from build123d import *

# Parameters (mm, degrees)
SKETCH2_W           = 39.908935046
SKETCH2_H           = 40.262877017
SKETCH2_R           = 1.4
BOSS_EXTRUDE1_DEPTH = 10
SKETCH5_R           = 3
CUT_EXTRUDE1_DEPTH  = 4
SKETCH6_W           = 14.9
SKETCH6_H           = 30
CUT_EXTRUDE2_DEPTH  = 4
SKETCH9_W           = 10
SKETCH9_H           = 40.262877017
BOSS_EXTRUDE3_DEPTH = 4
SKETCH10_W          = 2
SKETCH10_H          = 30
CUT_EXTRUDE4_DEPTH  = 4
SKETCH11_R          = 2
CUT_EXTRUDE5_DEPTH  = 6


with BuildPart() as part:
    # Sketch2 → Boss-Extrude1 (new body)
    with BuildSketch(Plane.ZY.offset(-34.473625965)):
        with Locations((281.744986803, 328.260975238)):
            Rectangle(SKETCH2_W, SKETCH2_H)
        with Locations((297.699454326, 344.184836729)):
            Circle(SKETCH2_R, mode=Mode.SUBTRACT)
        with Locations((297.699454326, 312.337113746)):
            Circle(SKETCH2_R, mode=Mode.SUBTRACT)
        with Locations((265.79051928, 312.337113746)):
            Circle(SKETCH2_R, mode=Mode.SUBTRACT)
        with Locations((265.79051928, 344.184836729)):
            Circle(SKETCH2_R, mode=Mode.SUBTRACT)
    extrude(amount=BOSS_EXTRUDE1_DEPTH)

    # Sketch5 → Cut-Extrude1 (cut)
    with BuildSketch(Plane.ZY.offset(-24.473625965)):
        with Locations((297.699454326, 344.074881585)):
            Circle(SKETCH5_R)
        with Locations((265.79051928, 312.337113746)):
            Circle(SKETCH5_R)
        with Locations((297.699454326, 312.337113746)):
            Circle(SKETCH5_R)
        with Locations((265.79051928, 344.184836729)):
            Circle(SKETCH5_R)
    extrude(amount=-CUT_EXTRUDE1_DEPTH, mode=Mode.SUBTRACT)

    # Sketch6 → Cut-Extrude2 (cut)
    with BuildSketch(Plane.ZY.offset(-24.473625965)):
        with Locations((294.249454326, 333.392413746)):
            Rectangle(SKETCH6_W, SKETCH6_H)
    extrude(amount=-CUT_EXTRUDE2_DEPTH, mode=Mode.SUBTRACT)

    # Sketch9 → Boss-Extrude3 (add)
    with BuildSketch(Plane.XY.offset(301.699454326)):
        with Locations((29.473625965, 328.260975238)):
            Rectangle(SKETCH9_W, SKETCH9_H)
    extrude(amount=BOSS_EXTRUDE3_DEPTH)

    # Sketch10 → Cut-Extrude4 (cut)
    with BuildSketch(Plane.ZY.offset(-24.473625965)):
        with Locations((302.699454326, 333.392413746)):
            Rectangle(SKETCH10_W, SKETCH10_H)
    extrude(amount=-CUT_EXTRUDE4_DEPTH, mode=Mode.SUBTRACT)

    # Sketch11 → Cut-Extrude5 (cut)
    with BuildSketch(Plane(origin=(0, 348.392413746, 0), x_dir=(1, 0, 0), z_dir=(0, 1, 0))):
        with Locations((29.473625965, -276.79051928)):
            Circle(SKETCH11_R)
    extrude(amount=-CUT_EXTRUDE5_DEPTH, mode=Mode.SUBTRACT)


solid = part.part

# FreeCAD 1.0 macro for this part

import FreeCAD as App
import Part
import Sketcher


def add_polygon(sketch, points):
    """Adds a closed chain of lines whose ends are joined by coincident constraints."""
    first, n = sketch.GeometryCount, len(points)
    for a, b in zip(points, points[1:] + points[:1]):
        sketch.addGeometry(Part.LineSegment(App.Vector(*a, 0), App.Vector(*b, 0)), False)
    for i in range(n):
        sketch.addConstraint(Sketcher.Constraint("Coincident", first + i, 2, first + (i + 1) % n, 1))

doc = App.newDocument("Part")
params = doc.addObject("Spreadsheet::Sheet", "Params")
for row, (alias, value) in enumerate([
    ("sketch1_diameter", "2.8 mm"),
    ("pad1_length", "10 mm"),
    ("sketch2_diameter", "6 mm"),
    ("pocket1_length", "4 mm"),
    ("sketch3_width", "30 mm"),
    ("sketch3_height", "14.9 mm"),
    ("pocket2_length", "4 mm"),
    ("sketch4_width", "10 mm"),
    ("pad2_length", "4 mm"),
    ("sketch5_width", "30 mm"),
    ("sketch5_height", "2 mm"),
    ("pocket3_length", "4 mm"),
    ("sketch6_diameter", "4 mm"),
    ("pocket4_length", "6 mm"),
], start=1):
    params.set(f"A{row}", alias)
    params.set(f"B{row}", "=" + value)
    params.setAlias(f"B{row}", alias)

body = doc.addObject("PartDesign::Body", "Body")

sketch1 = body.newObject("Sketcher::SketchObject", "Sketch")
sketch1.AttachmentSupport = (doc.getObject("YZ_Plane"), [""])
sketch1.MapMode = "FlatFace"
sketch1.AttachmentOffset = App.Placement(App.Vector(0, 0, 34.473626), App.Rotation())
add_polygon(sketch1, [(348.392414, 261.790519), (308.129537, 261.790519), (308.129537, 301.699454), (348.392414, 301.699454)])
sketch1.addGeometry(Part.Circle(App.Vector(312.337114, 265.790519, 0), App.Vector(0, 0, 1), 1.4), False)
sketch1.addGeometry(Part.Circle(App.Vector(312.337114, 297.699454, 0), App.Vector(0, 0, 1), 1.4), False)
sketch1.addGeometry(Part.Circle(App.Vector(344.184837, 265.790519, 0), App.Vector(0, 0, 1), 1.4), False)
sketch1.addGeometry(Part.Circle(App.Vector(344.184837, 297.699454, 0), App.Vector(0, 0, 1), 1.4), False)
sketch1.addConstraint([
    Sketcher.Constraint("Horizontal", 0),
    Sketcher.Constraint("Vertical", 1),
    Sketcher.Constraint("Horizontal", 2),
    Sketcher.Constraint("Vertical", 3),
    Sketcher.Constraint("Equal", 4, 5),
    Sketcher.Constraint("Equal", 5, 6),
    Sketcher.Constraint("Equal", 6, 7),
    Sketcher.Constraint("Horizontal", 4, 3, 6, 3),
    Sketcher.Constraint("Horizontal", 5, 3, 7, 3),
    Sketcher.Constraint("Vertical", 4, 3, 5, 3),
    Sketcher.Constraint("Vertical", 6, 3, 7, 3),
    Sketcher.Constraint("Diameter", 4, 2.8),
    Sketcher.Constraint("DistanceY", 0, 2, 4, 3, 4.0),
    Sketcher.Constraint("DistanceY", 5, 3, 1, 2, 4.0),
    Sketcher.Constraint("DistanceX", 0, 2, 6, 3, 36.0553),
    Sketcher.Constraint("DistanceX", 5, 3, 2, 2, 36.0553),
    Sketcher.Constraint("DistanceX", 0, 2, 0, 1, 40.262877),
    Sketcher.Constraint("DistanceY", 1, 1, 1, 2, 39.908935),
    Sketcher.Constraint("DistanceY", -1, 1, 4, 3, 265.790519),
    Sketcher.Constraint("DistanceX", -1, 1, 4, 3, 312.337114),
])
sketch1.setExpression("Constraints[15]", "Params.sketch1_diameter")
pad1 = body.newObject("PartDesign::Pad", "Pad")
pad1.Profile = sketch1
pad1.setExpression("Length", "Params.pad1_length")
pad1.Reversed = True

sketch2 = body.newObject("Sketcher::SketchObject", "Sketch001")
sketch2.AttachmentSupport = (doc.getObject("YZ_Plane"), [""])
sketch2.MapMode = "FlatFace"
sketch2.AttachmentOffset = App.Placement(App.Vector(0, 0, 24.473626), App.Rotation())
sketch2.addGeometry([
    Part.Circle(App.Vector(344.074882, 297.699454, 0), App.Vector(0, 0, 1), 3),
    Part.Circle(App.Vector(312.337114, 265.790519, 0), App.Vector(0, 0, 1), 3),
    Part.Circle(App.Vector(312.337114, 297.699454, 0), App.Vector(0, 0, 1), 3),
    Part.Circle(App.Vector(344.184837, 265.790519, 0), App.Vector(0, 0, 1), 3),
], False)
sketch2.addConstraint([
    Sketcher.Constraint("Equal", 0, 1),
    Sketcher.Constraint("Equal", 1, 2),
    Sketcher.Constraint("Equal", 2, 3),
    Sketcher.Constraint("Horizontal", 0, 3, 2, 3),
    Sketcher.Constraint("Horizontal", 1, 3, 3, 3),
    Sketcher.Constraint("Vertical", 1, 3, 2, 3),
    Sketcher.Constraint("Diameter", 0, 6.0),
    Sketcher.Constraint("DistanceX", -1, 1, 0, 3, 344.074882),
    Sketcher.Constraint("DistanceY", -1, 1, 1, 3, 265.790519),
    Sketcher.Constraint("DistanceY", -1, 1, 0, 3, 297.699454),
    Sketcher.Constraint("DistanceX", -1, 1, 1, 3, 312.337114),
    Sketcher.Constraint("DistanceX", -1, 1, 3, 3, 344.184837),
])
sketch2.setExpression("Constraints[6]", "Params.sketch2_diameter")
pocket1 = body.newObject("PartDesign::Pocket", "Pocket")
pocket1.Profile = sketch2
pocket1.setExpression("Length", "Params.pocket1_length")
pocket1.Reversed = True

sketch3 = body.newObject("Sketcher::SketchObject", "Sketch002")
sketch3.AttachmentSupport = (doc.getObject("YZ_Plane"), [""])
sketch3.MapMode = "FlatFace"
sketch3.AttachmentOffset = App.Placement(App.Vector(0, 0, 24.473626), App.Rotation())
add_polygon(sketch3, [(348.392414, 286.799454), (318.392414, 286.799454), (318.392414, 301.699454), (348.392414, 301.699454)])
sketch3.addConstraint([
    Sketcher.Constraint("Horizontal", 0),
    Sketcher.Constraint("Vertical", 1),
    Sketcher.Constraint("Horizontal", 2),
    Sketcher.Constraint("Vertical", 3),
    Sketcher.Constraint("DistanceX", 0, 2, 0, 1, 30.0),
    Sketcher.Constraint("DistanceY", 1, 1, 1, 2, 14.9),
    Sketcher.Constraint("DistanceX", -1, 1, 0, 2, 318.392414),
    Sketcher.Constraint("DistanceY", -1, 1, 0, 2, 286.799454),
])
sketch3.setExpression("Constraints[8]", "Params.sketch3_width")
sketch3.setExpression("Constraints[9]", "Params.sketch3_height")
pocket2 = body.newObject("PartDesign::Pocket", "Pocket001")
pocket2.Profile = sketch3
pocket2.setExpression("Length", "Params.pocket2_length")
pocket2.Reversed = True

sketch4 = body.newObject("Sketcher::SketchObject", "Sketch003")
sketch4.AttachmentSupport = (doc.getObject("XY_Plane"), [""])
sketch4.MapMode = "FlatFace"
sketch4.AttachmentOffset = App.Placement(App.Vector(0, 0, 301.699454), App.Rotation())
add_polygon(sketch4, [(24.473626, 348.392414), (24.473626, 308.129537), (34.473626, 308.129537), (34.473626, 348.392414)])
sketch4.addConstraint([
    Sketcher.Constraint("Vertical", 0),
    Sketcher.Constraint("Horizontal", 1),
    Sketcher.Constraint("Vertical", 2),
    Sketcher.Constraint("Horizontal", 3),
    Sketcher.Constraint("DistanceX", 1, 1, 1, 2, 10.0),
    Sketcher.Constraint("DistanceY", 0, 2, 0, 1, 40.262877),
    Sketcher.Constraint("DistanceX", -1, 1, 0, 2, 24.473626),
    Sketcher.Constraint("DistanceY", -1, 1, 0, 2, 308.129537),
])
sketch4.setExpression("Constraints[8]", "Params.sketch4_width")
pad2 = body.newObject("PartDesign::Pad", "Pad001")
pad2.Profile = sketch4
pad2.setExpression("Length", "Params.pad2_length")

sketch5 = body.newObject("Sketcher::SketchObject", "Sketch004")
sketch5.AttachmentSupport = (doc.getObject("YZ_Plane"), [""])
sketch5.MapMode = "FlatFace"
sketch5.AttachmentOffset = App.Placement(App.Vector(0, 0, 24.473626), App.Rotation())
add_polygon(sketch5, [(348.392414, 301.699454), (318.392414, 301.699454), (318.392414, 303.699454), (348.392414, 303.699454)])
sketch5.addConstraint([
    Sketcher.Constraint("Horizontal", 0),
    Sketcher.Constraint("Vertical", 1),
    Sketcher.Constraint("Horizontal", 2),
    Sketcher.Constraint("Vertical", 3),
    Sketcher.Constraint("DistanceX", 0, 2, 0, 1, 30.0),
    Sketcher.Constraint("DistanceY", 1, 1, 1, 2, 2.0),
    Sketcher.Constraint("DistanceX", -1, 1, 0, 2, 318.392414),
    Sketcher.Constraint("DistanceY", -1, 1, 0, 2, 301.699454),
])
sketch5.setExpression("Constraints[8]", "Params.sketch5_width")
sketch5.setExpression("Constraints[9]", "Params.sketch5_height")
pocket3 = body.newObject("PartDesign::Pocket", "Pocket002")
pocket3.Profile = sketch5
pocket3.setExpression("Length", "Params.pocket3_length")
pocket3.Reversed = True

sketch6 = body.newObject("Sketcher::SketchObject", "Sketch005")
sketch6.AttachmentSupport = (doc.getObject("XZ_Plane"), [""])
sketch6.MapMode = "FlatFace"
sketch6.AttachmentOffset = App.Placement(App.Vector(0, 0, -348.392414), App.Rotation())
sketch6.addGeometry(Part.Circle(App.Vector(29.473626, 276.790519, 0), App.Vector(0, 0, 1), 2), False)
sketch6.addConstraint([
    Sketcher.Constraint("Diameter", 0, 4.0),
    Sketcher.Constraint("DistanceY", -1, 1, 0, 3, 276.790519),
    Sketcher.Constraint("DistanceX", -1, 1, 0, 3, 29.473626),
])
sketch6.setExpression("Constraints[0]", "Params.sketch6_diameter")
pocket4 = body.newObject("PartDesign::Pocket", "Pocket003")
pocket4.Profile = sketch6
pocket4.setExpression("Length", "Params.pocket4_length")
pocket4.Reversed = True

doc.recompute()
